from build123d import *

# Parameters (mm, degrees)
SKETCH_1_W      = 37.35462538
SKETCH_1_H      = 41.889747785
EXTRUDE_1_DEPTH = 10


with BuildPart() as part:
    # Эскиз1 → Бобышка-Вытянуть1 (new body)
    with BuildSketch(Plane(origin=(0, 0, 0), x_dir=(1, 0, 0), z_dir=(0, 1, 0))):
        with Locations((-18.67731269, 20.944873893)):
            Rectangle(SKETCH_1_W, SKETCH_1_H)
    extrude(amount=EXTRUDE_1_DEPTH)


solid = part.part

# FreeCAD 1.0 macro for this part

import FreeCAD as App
import Part
import Sketcher
from FreeCAD import Vector
Q = App.Units.Quantity

doc = App.newDocument("Part")
body = doc.addObject("PartDesign::Body", "Body")

sketch1 = body.newObject("Sketcher::SketchObject", "Sketch")
sketch1.AttachmentSupport = (doc.getObject("XZ_Plane"), [""])
sketch1.MapMode = "FlatFace"
sketch1.addGeometry([
    Part.LineSegment(Vector(-37.354625, -41.889748, 0), Vector(-37.354625, 0, 0)),
    Part.LineSegment(Vector(-37.354625, 0, 0), Vector(0, 0, 0)),
    Part.LineSegment(Vector(0, 0, 0), Vector(0, -41.889748, 0)),
    Part.LineSegment(Vector(0, -41.889748, 0), Vector(-37.354625, -41.889748, 0)),
], False)
sketch1.addConstraint([
    Sketcher.Constraint("Coincident", 0, 2, 1, 1),
    Sketcher.Constraint("Coincident", 1, 2, 2, 1),
    Sketcher.Constraint("Coincident", 2, 2, 3, 1),
    Sketcher.Constraint("Coincident", 3, 2, 0, 1),
    Sketcher.Constraint("Vertical", 0),
    Sketcher.Constraint("Horizontal", 1),
    Sketcher.Constraint("Vertical", 2),
    Sketcher.Constraint("Horizontal", 3),
    Sketcher.Constraint("Coincident", 1, 2, -1, 1),
    Sketcher.Constraint("DistanceX", 1, 1, 1, 2, Q("37.354625 mm")),
    Sketcher.Constraint("DistanceY", 0, 1, 0, 2, Q("41.889748 mm")),
])
pad1 = body.newObject("PartDesign::Pad", "Pad")
pad1.Profile = sketch1
pad1.Length = 10
pad1.Reversed = True

doc.recompute()
